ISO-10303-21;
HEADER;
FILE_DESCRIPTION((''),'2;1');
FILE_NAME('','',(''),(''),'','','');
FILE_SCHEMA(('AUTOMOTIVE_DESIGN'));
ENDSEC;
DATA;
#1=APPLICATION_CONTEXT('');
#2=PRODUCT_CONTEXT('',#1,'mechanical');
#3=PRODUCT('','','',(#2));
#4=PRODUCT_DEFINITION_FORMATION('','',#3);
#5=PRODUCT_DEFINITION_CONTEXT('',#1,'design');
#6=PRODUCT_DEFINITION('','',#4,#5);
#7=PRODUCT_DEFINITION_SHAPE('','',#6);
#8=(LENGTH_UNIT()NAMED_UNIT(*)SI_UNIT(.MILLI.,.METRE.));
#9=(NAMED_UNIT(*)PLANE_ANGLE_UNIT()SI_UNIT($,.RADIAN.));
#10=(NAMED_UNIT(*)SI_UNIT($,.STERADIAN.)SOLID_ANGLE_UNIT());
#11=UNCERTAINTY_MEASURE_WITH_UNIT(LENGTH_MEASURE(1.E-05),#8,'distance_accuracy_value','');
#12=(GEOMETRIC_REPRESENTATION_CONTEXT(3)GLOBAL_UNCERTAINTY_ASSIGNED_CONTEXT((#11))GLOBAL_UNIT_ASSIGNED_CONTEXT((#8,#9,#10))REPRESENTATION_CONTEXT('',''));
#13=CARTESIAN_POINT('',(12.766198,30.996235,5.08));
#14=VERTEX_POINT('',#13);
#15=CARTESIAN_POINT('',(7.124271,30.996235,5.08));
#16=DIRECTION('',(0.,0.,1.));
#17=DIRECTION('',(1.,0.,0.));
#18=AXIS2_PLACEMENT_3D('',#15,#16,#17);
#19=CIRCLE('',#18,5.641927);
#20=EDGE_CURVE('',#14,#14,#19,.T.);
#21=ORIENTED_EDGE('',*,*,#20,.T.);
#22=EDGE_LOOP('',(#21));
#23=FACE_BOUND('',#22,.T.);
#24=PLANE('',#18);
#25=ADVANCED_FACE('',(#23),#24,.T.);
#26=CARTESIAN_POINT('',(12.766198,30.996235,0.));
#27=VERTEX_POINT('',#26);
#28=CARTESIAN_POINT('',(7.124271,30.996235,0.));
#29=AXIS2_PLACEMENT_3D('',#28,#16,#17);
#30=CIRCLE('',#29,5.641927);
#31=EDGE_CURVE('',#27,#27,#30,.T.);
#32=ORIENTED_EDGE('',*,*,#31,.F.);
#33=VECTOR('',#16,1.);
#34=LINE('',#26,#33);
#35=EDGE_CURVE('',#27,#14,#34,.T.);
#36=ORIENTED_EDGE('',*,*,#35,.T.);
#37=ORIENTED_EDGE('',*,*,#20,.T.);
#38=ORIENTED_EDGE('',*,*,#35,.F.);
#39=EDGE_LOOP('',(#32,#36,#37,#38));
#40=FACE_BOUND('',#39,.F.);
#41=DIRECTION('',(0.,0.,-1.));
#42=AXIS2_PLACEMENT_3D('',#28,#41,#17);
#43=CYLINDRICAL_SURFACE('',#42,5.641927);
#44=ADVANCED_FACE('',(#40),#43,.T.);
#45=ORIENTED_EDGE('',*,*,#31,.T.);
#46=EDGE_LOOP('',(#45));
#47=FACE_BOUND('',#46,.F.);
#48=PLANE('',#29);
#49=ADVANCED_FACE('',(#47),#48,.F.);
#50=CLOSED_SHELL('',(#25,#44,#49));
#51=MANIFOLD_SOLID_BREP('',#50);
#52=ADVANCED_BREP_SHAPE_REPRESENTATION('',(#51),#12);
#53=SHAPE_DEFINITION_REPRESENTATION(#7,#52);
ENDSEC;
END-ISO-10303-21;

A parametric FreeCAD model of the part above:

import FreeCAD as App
import Part
import Sketcher
Q = App.Units.Quantity

doc = App.newDocument("Part")
body = doc.addObject("PartDesign::Body", "Body")

sketch1 = body.newObject("Sketcher::SketchObject", "Sketch")
sketch1.AttachmentSupport = (doc.getObject("XY_Plane"), [""])
sketch1.MapMode = "FlatFace"
sketch1.addGeometry(Part.Circle(App.Vector(7, 31, 0), App.Vector(0, 0, 1), 6), False)
sketch1.addConstraint([
    Sketcher.Constraint("Diameter", 0, 11.283855),
    Sketcher.Constraint("DistanceX", -1, 1, 0, 3, 7.124271),
    Sketcher.Constraint("DistanceY", -1, 1, 0, 3, 30.996235),
])
pad1 = body.newObject("PartDesign::Pad", "Pad")
pad1.Profile = sketch1
pad1.Length = Q("0.2 in")

doc.recompute()
